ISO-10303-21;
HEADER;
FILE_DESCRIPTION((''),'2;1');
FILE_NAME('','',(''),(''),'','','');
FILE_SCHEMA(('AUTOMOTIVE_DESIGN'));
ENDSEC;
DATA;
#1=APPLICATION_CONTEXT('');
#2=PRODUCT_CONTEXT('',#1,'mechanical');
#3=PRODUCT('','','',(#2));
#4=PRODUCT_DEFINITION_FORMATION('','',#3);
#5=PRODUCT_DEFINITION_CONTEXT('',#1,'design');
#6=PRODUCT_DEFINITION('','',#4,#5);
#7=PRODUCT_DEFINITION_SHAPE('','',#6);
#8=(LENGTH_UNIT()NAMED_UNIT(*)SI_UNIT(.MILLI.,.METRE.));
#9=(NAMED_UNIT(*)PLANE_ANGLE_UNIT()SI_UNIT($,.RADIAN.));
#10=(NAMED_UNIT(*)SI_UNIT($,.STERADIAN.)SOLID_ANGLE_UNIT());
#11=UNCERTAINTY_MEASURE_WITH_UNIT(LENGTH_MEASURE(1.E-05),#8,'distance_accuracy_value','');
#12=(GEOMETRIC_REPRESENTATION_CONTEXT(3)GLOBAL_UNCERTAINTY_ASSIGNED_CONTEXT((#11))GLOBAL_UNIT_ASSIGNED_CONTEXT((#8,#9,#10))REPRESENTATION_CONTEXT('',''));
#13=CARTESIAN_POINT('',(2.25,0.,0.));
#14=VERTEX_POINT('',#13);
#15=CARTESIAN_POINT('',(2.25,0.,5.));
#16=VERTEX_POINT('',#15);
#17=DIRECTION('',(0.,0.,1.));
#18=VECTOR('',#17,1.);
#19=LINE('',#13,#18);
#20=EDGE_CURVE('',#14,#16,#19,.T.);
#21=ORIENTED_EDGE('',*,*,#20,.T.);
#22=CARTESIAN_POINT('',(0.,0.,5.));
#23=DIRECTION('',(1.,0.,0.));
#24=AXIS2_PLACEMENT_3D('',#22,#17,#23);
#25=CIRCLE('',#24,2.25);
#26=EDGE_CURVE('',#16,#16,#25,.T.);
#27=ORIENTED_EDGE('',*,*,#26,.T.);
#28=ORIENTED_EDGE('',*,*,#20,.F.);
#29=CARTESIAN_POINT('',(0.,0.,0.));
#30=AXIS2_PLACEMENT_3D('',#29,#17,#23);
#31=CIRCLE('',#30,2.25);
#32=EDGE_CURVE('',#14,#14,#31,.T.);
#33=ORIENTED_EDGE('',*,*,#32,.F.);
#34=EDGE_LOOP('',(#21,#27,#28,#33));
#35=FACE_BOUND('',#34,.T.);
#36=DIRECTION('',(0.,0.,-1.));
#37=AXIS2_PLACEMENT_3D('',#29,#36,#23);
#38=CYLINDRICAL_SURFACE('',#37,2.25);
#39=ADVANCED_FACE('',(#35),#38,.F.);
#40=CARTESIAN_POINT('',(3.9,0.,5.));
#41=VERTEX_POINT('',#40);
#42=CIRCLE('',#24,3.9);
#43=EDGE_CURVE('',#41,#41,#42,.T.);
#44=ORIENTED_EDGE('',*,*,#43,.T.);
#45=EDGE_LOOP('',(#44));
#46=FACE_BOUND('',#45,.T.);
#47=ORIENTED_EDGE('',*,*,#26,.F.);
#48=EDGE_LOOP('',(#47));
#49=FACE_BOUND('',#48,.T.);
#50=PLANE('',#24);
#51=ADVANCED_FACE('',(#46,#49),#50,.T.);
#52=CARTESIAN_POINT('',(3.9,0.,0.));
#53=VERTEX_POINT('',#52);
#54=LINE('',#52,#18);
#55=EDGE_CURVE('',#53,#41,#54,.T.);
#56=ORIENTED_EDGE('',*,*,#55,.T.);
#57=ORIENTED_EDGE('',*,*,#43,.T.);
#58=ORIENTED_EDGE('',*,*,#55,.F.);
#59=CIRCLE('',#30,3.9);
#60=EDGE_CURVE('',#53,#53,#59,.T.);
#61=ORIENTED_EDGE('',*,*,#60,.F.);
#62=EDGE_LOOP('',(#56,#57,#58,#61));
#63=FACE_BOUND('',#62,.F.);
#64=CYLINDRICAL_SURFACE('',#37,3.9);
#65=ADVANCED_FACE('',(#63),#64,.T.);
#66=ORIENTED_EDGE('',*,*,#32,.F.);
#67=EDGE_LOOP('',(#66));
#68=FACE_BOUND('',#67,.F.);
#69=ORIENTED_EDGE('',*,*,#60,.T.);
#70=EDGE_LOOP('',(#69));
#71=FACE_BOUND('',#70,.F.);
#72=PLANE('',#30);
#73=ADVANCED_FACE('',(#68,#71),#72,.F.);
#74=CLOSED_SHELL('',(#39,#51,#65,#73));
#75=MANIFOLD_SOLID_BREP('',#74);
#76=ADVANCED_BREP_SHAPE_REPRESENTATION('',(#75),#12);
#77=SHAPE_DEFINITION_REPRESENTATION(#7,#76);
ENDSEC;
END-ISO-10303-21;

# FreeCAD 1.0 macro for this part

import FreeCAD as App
import Part
import Sketcher
from FreeCAD import Vector

doc = App.newDocument("Part")
body = doc.addObject("PartDesign::Body", "Body")

sketch1 = doc.addObject("Sketcher::SketchObject", "Sketch")
body.addObject(sketch1)
sketch1.AttachmentSupport = (doc.XY_Plane, [""])
sketch1.MapMode = "FlatFace"
sketch1.addGeometry([
    Part.Circle(Vector(0, 0, 0), Vector(0, 0, 1), 3.9),
    Part.Circle(Vector(0, 0, 0), Vector(0, 0, 1), 2.2),
], False)
sketch1.addConstraint([
    Sketcher.Constraint("Coincident", 0, 3, -1, 1),
    Sketcher.Constraint("Coincident", 1, 3, -1, 1),
    Sketcher.Constraint("Diameter", 0, 7.8),
    Sketcher.Constraint("Diameter", 1, 4.5),
])
pad1 = doc.addObject("PartDesign::Pad", "Pad")
body.addObject(pad1)
pad1.Profile = sketch1
pad1.Length = 5

doc.recompute()
